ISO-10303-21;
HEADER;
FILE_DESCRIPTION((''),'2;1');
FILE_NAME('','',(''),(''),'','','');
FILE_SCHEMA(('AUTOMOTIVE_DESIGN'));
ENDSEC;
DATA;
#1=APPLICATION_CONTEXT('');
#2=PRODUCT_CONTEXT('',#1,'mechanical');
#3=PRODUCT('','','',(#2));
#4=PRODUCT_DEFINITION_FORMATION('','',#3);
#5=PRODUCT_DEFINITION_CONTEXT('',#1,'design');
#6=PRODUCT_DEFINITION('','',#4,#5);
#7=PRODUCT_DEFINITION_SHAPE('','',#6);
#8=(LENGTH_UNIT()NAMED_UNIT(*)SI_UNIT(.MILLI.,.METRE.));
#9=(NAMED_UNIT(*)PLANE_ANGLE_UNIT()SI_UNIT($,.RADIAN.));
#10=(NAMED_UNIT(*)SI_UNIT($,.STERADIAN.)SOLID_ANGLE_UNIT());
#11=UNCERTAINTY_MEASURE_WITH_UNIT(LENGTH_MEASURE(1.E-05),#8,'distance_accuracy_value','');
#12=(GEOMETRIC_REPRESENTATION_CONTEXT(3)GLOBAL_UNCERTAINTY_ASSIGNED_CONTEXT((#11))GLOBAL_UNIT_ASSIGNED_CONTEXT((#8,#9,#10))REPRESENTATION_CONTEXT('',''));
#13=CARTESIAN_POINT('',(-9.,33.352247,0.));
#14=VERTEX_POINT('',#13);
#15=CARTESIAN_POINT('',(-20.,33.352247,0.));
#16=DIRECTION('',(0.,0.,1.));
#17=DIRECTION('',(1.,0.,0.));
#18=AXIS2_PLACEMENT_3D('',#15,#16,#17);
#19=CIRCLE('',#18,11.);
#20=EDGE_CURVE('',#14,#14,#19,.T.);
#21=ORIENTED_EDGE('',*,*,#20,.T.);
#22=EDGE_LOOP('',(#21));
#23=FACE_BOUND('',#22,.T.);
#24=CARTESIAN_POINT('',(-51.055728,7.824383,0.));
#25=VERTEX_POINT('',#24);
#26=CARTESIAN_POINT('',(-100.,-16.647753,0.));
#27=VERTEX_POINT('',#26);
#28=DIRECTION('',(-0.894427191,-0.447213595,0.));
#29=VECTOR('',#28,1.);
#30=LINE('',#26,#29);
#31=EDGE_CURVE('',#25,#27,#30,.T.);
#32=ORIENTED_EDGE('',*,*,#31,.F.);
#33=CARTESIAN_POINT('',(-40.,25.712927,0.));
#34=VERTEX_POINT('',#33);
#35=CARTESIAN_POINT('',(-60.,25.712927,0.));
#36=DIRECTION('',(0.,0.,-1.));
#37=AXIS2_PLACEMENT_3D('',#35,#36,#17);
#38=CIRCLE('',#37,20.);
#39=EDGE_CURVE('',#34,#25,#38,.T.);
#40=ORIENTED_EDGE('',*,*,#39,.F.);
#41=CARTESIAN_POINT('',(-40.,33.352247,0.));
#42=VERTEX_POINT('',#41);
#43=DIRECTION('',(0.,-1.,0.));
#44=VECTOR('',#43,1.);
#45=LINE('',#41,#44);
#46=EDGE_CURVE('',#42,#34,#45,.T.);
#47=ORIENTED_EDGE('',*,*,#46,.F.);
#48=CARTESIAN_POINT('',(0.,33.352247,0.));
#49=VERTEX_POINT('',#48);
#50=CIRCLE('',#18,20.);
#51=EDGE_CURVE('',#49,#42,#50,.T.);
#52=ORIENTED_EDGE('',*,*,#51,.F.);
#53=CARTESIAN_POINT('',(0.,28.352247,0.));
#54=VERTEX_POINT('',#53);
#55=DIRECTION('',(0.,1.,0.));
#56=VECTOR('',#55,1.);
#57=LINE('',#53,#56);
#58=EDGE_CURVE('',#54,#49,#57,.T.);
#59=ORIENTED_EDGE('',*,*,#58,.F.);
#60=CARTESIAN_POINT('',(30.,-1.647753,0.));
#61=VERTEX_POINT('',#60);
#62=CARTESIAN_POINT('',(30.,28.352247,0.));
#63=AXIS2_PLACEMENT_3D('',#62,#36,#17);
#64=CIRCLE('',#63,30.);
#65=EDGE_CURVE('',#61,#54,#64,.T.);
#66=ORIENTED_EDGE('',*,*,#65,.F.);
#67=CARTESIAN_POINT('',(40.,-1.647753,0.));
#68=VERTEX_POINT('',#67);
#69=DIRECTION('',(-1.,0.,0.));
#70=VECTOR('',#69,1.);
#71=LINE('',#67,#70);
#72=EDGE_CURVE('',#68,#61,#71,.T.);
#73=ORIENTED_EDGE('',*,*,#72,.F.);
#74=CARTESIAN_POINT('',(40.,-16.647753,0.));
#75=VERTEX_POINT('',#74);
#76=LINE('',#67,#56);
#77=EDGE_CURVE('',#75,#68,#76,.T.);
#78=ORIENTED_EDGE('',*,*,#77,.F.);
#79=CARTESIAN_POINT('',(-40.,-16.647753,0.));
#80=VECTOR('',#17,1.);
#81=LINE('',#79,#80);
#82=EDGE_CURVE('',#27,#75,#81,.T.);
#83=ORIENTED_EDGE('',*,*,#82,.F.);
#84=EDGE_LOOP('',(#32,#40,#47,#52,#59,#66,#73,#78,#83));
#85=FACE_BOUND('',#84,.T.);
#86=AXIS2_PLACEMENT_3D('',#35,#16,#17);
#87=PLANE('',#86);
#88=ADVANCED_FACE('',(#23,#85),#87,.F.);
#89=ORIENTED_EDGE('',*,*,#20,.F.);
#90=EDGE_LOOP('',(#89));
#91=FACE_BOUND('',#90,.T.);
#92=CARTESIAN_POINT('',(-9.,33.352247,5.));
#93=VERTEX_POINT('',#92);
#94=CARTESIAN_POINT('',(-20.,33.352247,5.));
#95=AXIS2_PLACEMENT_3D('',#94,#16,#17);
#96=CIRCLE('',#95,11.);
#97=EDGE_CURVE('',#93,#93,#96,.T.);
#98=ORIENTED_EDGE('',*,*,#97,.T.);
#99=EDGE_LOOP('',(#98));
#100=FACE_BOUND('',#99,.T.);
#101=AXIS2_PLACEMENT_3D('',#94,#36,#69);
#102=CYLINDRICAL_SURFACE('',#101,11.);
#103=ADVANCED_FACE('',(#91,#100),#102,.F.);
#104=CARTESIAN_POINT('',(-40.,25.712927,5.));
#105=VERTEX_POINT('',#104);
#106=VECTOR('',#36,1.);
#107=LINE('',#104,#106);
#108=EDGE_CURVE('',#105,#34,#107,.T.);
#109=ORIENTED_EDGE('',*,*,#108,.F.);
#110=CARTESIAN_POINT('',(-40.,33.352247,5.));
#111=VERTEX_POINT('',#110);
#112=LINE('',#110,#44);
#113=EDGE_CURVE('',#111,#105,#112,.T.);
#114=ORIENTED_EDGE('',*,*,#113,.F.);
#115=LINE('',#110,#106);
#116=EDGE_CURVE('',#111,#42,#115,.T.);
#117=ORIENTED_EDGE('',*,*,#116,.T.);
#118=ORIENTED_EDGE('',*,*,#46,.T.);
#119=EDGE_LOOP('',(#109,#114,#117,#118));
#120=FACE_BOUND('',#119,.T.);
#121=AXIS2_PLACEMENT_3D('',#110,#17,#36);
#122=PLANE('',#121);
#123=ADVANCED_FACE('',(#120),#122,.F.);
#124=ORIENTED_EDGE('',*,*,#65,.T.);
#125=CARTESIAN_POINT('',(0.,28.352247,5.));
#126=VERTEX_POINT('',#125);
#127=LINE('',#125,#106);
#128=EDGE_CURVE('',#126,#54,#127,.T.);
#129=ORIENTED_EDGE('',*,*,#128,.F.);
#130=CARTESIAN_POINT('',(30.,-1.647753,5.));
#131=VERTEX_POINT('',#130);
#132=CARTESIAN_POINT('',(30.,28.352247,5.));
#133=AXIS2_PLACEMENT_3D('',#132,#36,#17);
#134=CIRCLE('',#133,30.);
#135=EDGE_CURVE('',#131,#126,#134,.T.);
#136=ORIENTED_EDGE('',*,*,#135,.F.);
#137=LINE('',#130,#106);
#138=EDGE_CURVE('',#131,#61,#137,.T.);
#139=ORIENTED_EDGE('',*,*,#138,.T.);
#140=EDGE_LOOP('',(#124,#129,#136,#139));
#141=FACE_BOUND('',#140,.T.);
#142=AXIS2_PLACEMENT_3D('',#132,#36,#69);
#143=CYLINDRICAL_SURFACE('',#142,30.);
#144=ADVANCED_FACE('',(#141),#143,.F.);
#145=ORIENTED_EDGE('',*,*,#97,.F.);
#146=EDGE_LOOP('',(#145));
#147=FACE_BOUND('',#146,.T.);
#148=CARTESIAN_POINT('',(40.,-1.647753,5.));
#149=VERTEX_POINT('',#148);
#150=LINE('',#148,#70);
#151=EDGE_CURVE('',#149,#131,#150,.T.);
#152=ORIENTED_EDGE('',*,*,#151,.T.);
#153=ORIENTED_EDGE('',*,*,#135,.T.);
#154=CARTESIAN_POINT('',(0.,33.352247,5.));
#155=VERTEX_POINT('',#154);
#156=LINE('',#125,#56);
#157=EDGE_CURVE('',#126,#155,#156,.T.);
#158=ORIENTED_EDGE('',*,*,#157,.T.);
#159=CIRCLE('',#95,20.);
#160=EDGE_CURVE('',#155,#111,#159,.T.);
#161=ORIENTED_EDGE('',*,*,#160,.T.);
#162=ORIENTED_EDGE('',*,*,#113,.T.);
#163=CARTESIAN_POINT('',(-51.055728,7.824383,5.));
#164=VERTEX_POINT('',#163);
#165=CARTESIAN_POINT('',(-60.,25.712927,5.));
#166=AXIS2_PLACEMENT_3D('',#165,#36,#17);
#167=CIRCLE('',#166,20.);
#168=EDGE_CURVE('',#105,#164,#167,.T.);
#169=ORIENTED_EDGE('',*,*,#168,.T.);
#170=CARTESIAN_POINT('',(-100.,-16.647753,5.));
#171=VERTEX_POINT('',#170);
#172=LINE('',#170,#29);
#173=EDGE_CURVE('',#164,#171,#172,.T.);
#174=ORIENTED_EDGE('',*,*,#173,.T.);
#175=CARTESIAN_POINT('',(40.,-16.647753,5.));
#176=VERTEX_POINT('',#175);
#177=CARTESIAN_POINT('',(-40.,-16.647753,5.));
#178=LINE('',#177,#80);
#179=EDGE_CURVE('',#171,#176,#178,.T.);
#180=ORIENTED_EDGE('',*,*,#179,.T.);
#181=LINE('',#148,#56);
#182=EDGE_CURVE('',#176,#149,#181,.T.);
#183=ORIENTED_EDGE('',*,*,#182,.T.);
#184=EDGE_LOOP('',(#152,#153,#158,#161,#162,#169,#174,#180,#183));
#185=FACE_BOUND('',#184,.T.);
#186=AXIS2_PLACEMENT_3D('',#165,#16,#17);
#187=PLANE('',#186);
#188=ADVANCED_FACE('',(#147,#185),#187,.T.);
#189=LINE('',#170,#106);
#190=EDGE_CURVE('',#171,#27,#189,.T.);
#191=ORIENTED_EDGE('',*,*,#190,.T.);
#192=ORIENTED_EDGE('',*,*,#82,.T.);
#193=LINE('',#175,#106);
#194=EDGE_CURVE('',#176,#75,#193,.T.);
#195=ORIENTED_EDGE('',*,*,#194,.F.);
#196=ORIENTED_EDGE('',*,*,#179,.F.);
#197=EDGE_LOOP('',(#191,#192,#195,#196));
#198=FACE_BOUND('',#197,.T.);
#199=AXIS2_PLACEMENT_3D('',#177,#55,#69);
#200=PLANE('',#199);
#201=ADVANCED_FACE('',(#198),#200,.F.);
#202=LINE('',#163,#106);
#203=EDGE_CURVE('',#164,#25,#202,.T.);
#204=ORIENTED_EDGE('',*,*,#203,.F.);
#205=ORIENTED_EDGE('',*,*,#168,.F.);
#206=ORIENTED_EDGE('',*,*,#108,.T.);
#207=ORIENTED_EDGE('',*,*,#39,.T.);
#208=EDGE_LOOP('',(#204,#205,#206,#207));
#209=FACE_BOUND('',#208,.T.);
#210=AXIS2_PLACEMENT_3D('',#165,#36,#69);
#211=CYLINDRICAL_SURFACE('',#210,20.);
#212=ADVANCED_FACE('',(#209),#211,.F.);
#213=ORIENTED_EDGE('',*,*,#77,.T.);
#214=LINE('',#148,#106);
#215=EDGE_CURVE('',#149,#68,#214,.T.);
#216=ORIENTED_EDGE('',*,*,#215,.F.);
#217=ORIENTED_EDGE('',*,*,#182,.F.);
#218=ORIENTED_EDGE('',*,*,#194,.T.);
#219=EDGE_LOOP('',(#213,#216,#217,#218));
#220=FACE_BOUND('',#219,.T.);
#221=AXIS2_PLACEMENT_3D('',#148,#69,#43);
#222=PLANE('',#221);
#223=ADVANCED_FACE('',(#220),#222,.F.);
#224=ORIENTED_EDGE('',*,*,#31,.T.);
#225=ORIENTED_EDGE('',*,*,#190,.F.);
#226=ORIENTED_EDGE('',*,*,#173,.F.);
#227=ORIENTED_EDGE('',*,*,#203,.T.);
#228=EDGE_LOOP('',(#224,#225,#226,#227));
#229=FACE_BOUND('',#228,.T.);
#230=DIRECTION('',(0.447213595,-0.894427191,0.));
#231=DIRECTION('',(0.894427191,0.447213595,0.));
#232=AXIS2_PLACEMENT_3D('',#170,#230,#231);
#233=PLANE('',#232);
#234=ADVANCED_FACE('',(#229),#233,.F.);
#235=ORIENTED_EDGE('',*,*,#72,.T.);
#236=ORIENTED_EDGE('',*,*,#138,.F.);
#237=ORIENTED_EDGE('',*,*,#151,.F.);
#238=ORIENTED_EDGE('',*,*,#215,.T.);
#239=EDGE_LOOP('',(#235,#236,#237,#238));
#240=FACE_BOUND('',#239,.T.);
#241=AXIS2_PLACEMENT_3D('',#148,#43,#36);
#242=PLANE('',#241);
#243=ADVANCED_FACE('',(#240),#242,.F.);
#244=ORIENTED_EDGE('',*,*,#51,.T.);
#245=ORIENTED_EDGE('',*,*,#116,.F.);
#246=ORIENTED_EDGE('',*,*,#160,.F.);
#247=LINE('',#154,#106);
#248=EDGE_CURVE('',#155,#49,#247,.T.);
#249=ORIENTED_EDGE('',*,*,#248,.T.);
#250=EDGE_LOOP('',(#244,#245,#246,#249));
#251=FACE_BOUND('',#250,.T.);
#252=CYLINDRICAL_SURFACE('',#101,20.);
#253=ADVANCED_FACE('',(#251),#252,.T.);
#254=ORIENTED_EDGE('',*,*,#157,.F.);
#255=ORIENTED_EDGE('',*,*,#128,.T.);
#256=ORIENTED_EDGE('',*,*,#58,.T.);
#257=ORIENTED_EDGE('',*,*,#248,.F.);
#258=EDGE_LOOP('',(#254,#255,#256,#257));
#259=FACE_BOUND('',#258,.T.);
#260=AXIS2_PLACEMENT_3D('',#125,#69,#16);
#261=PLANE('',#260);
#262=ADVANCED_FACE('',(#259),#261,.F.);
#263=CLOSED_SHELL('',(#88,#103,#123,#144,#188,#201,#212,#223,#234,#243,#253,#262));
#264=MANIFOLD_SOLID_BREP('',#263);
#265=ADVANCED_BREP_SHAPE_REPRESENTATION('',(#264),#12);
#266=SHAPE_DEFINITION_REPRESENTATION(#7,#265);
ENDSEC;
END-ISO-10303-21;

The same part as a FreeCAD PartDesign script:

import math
import FreeCAD as App
import Part
import Sketcher
Q = App.Units.Quantity

doc = App.newDocument("Part")
body = doc.addObject("PartDesign::Body", "Body")

# Sketch on XY plane
sketch1 = body.newObject("Sketcher::SketchObject", "Sketch")
sketch1.AttachmentSupport = (doc.getObject("XY_Plane"), [""])
sketch1.MapMode = "FlatFace"
sketch1.addGeometry(Part.LineSegment(App.Vector(-51.055728, 7.824383, 0), App.Vector(-100, -16.647753, 0)), False)
sketch1.addGeometry(Part.LineSegment(App.Vector(-100, -16.647753, 0), App.Vector(40, -16.647753, 0)), False)
sketch1.addGeometry(Part.LineSegment(App.Vector(40, -16.647753, 0), App.Vector(40, -1.647753, 0)), False)
sketch1.addGeometry(Part.LineSegment(App.Vector(40, -1.647753, 0), App.Vector(30, -1.647753, 0)), False)
sketch1.addGeometry(Part.ArcOfCircle(Part.Circle(App.Vector(30, 28.352247, 0), App.Vector(0, 0, 1), 30), math.radians(180), math.radians(270)), False)
sketch1.addGeometry(Part.LineSegment(App.Vector(0, 28.352247, 0), App.Vector(0, 33.352247, 0)), False)
sketch1.addGeometry(Part.ArcOfCircle(Part.Circle(App.Vector(-20, 33.352247, 0), App.Vector(0, 0, 1), 20), math.radians(0), math.radians(180.000002)), False)
sketch1.addGeometry(Part.LineSegment(App.Vector(-40, 33.352247, 0), App.Vector(-40, 25.712927, 0)), False)
sketch1.addGeometry(Part.ArcOfCircle(Part.Circle(App.Vector(-60, 25.712927, 0), App.Vector(0, 0, 1), 20), math.radians(-63.434949), math.radians(0)), False)
sketch1.addGeometry(Part.Circle(App.Vector(-20, 33.352247, 0), App.Vector(0, 0, 1), 11), False)
sketch1.addConstraint(Sketcher.Constraint("Coincident", 0, 2, 1, 1))
sketch1.addConstraint(Sketcher.Constraint("Coincident", 1, 2, 2, 1))
sketch1.addConstraint(Sketcher.Constraint("Coincident", 2, 2, 3, 1))
sketch1.addConstraint(Sketcher.Constraint("Tangent", 3, 2, 4, 2))
sketch1.addConstraint(Sketcher.Constraint("Tangent", 4, 1, 5, 1))
sketch1.addConstraint(Sketcher.Constraint("Tangent", 5, 2, 6, 1))
sketch1.addConstraint(Sketcher.Constraint("Tangent", 6, 2, 7, 1))
sketch1.addConstraint(Sketcher.Constraint("Tangent", 7, 2, 8, 2))
sketch1.addConstraint(Sketcher.Constraint("Tangent", 8, 1, 0, 1))
sketch1.addConstraint(Sketcher.Constraint("Horizontal", 1))
sketch1.addConstraint(Sketcher.Constraint("Vertical", 2))
sketch1.addConstraint(Sketcher.Constraint("Horizontal", 3))
sketch1.addConstraint(Sketcher.Constraint("Vertical", 5))
sketch1.addConstraint(Sketcher.Constraint("Vertical", 7))
sketch1.addConstraint(Sketcher.Constraint("Coincident", 9, 3, 6, 3))
sketch1.addConstraint(Sketcher.Constraint("Equal", 6, 8))
sketch1.addConstraint(Sketcher.Constraint("PointOnObject", 4, 1, -2))
sketch1.addConstraint(Sketcher.Constraint("Diameter", 9, Q("22 mm")))
sketch1.addConstraint(Sketcher.Constraint("Radius", 4, Q("30 mm")))
sketch1.addConstraint(Sketcher.Constraint("Radius", 6, Q("20 mm")))
sketch1.addConstraint(Sketcher.Constraint("DistanceX", 1, 1, 1, 2, Q("140 mm")))
sketch1.addConstraint(Sketcher.Constraint("DistanceX", 3, 2, 3, 1, Q("10 mm")))
sketch1.addConstraint(Sketcher.Constraint("DistanceY", 2, 1, 2, 2, Q("15 mm")))
sketch1.addConstraint(Sketcher.Constraint("DistanceY", 5, 1, 5, 2, Q("5.000001 mm")))
sketch1.addConstraint(Sketcher.Constraint("DistanceY", 7, 2, 7, 1, Q("7.63932 mm")))
sketch1.addConstraint(Sketcher.Constraint("DistanceY", -1, 1, 4, 3, Q("28.352247 mm")))
pad1 = body.newObject("PartDesign::Pad", "Pad")
pad1.Profile = sketch1
pad1.Length = 5

doc.recompute()
